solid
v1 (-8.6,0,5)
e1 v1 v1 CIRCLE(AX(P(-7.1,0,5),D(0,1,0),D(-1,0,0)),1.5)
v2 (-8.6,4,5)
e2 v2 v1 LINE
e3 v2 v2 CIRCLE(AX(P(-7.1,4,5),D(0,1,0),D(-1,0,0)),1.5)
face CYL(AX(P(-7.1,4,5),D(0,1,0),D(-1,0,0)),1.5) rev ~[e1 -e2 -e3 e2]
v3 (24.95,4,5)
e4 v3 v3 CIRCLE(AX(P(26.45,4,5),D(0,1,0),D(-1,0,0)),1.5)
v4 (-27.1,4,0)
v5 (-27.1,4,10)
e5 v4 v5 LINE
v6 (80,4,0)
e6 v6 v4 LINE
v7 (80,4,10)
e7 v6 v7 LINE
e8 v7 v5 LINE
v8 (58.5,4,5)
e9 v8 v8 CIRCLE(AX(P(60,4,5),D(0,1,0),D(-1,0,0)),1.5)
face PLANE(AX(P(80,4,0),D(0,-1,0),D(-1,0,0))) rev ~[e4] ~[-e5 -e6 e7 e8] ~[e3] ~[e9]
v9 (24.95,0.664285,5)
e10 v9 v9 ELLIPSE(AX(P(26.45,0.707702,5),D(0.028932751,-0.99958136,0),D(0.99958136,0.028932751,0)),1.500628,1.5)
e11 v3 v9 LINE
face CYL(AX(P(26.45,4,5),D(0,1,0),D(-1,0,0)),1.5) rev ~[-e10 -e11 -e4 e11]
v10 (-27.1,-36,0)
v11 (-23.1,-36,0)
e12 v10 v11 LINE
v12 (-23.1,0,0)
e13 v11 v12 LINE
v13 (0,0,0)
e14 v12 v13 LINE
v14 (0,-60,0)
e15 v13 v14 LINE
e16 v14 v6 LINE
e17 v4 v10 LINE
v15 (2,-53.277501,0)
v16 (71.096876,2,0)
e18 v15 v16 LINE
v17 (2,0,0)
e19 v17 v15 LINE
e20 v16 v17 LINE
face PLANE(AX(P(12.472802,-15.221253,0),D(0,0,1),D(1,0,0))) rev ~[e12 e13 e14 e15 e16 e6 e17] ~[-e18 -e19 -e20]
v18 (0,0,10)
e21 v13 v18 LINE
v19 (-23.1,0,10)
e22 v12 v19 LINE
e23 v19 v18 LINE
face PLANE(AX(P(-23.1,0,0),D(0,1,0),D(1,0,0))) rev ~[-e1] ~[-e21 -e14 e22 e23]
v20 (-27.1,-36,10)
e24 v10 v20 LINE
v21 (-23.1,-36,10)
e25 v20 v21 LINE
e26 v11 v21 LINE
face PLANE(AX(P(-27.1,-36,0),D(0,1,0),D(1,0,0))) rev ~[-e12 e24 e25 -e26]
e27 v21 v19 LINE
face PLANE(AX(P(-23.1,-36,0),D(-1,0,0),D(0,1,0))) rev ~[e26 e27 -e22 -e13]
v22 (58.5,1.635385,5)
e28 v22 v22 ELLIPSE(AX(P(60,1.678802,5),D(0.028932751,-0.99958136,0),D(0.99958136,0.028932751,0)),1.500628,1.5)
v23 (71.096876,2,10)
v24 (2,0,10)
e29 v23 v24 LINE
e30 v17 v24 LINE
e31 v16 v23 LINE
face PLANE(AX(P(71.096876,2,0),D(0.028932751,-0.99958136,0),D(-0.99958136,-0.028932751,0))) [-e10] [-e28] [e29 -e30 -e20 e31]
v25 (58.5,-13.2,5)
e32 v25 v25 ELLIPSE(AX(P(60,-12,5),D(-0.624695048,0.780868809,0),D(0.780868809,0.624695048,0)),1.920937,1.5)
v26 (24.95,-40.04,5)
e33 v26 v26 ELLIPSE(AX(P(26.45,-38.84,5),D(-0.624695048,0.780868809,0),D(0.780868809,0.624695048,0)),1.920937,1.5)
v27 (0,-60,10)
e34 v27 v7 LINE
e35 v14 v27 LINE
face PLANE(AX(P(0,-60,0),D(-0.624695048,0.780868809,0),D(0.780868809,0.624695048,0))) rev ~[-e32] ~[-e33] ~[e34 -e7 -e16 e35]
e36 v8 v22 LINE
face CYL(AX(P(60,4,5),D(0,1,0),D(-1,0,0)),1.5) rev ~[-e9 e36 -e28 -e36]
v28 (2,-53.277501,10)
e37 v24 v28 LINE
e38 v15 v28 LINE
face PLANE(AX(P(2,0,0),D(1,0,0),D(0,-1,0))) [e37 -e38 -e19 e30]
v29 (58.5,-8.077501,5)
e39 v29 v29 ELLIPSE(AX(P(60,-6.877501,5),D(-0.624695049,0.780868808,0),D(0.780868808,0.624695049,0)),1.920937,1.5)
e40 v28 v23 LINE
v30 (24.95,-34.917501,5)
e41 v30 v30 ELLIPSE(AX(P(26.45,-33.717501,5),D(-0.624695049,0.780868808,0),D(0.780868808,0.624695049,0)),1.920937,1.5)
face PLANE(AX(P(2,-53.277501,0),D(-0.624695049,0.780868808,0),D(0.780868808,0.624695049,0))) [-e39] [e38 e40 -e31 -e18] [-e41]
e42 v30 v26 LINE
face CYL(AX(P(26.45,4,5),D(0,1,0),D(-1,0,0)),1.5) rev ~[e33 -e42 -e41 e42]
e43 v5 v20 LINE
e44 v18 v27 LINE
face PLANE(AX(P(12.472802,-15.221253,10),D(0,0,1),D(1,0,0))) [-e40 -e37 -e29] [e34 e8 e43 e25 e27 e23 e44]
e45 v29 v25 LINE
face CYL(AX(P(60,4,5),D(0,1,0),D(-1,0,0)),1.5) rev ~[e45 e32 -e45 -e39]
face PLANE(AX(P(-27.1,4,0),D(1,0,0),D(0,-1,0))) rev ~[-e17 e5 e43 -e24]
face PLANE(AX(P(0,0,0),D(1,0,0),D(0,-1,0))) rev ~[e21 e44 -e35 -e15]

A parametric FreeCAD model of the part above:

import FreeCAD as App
import Part
import Sketcher
from FreeCAD import Vector

doc = App.newDocument("Part")
params = doc.addObject("Spreadsheet::Sheet", "Params")
for row, (alias, value) in enumerate([
    ("sketch1_width", "4 mm"),
    ("sketch1_height", "40 mm"),
    ("sketch1_height2", "36 mm"),
    ("sketch1_height3", "60 mm"),
    ("sketch1_width2", "107.1 mm"),
    ("pad1_length", "10 mm"),
    ("sketch2_diameter", "3 mm"),
], start=1):
    params.set(f"A{row}", alias)
    params.set(f"B{row}", "=" + value)
    params.setAlias(f"B{row}", alias)

body = doc.addObject("PartDesign::Body", "Body")

# Sketch on XY plane
sketch1 = doc.addObject("Sketcher::SketchObject", "Sketch")
body.addObject(sketch1)
sketch1.AttachmentSupport = (doc.XY_Plane, [""])
sketch1.MapMode = "FlatFace"
sketch1.addGeometry(Part.LineSegment(Vector(80, 4, 0), Vector(-27.1, 4, 0)), False)
sketch1.addGeometry(Part.LineSegment(Vector(-27.1, 4, 0), Vector(-27.1, -36, 0)), False)
sketch1.addGeometry(Part.LineSegment(Vector(-27.1, -36, 0), Vector(-23.1, -36, 0)), False)
sketch1.addGeometry(Part.LineSegment(Vector(-23.1, -36, 0), Vector(-23.1, 0, 0)), False)
sketch1.addGeometry(Part.LineSegment(Vector(-23.1, 0, 0), Vector(0, 0, 0)), False)
sketch1.addGeometry(Part.LineSegment(Vector(0, 0, 0), Vector(0, -60, 0)), False)
sketch1.addGeometry(Part.LineSegment(Vector(0, -60, 0), Vector(80, 4, 0)), False)
sketch1.addGeometry(Part.LineSegment(Vector(2, -53.3, 0), Vector(2, 0, 0)), False)
sketch1.addGeometry(Part.LineSegment(Vector(2, 0, 0), Vector(71.1, 2, 0)), False)
sketch1.addGeometry(Part.LineSegment(Vector(71.1, 2, 0), Vector(2, -53.3, 0)), False)
sketch1.addConstraint(Sketcher.Constraint("Coincident", 0, 2, 1, 1))
sketch1.addConstraint(Sketcher.Constraint("Coincident", 1, 2, 2, 1))
sketch1.addConstraint(Sketcher.Constraint("Coincident", 2, 2, 3, 1))
sketch1.addConstraint(Sketcher.Constraint("Coincident", 3, 2, 4, 1))
sketch1.addConstraint(Sketcher.Constraint("Coincident", 4, 2, 5, 1))
sketch1.addConstraint(Sketcher.Constraint("Coincident", 5, 2, 6, 1))
sketch1.addConstraint(Sketcher.Constraint("Coincident", 6, 2, 0, 1))
sketch1.addConstraint(Sketcher.Constraint("Coincident", 7, 2, 8, 1))
sketch1.addConstraint(Sketcher.Constraint("Coincident", 8, 2, 9, 1))
sketch1.addConstraint(Sketcher.Constraint("Coincident", 9, 2, 7, 1))
sketch1.addConstraint(Sketcher.Constraint("Horizontal", 0))
sketch1.addConstraint(Sketcher.Constraint("Vertical", 1))
sketch1.addConstraint(Sketcher.Constraint("Horizontal", 2))
sketch1.addConstraint(Sketcher.Constraint("Vertical", 3))
sketch1.addConstraint(Sketcher.Constraint("Horizontal", 4))
sketch1.addConstraint(Sketcher.Constraint("Vertical", 5))
sketch1.addConstraint(Sketcher.Constraint("Vertical", 7))
sketch1.addConstraint(Sketcher.Constraint("Coincident", 4, 2, -1, 1))
sketch1.addConstraint(Sketcher.Constraint("PointOnObject", 7, 2, -1))
sketch1.addConstraint(Sketcher.Constraint("Parallel", 6, 9))
sketch1.addConstraint(Sketcher.Constraint("DistanceX", 2, 1, 2, 2, 4.0))
sketch1.addConstraint(Sketcher.Constraint("DistanceY", 1, 2, 1, 1, 40.0))
sketch1.addConstraint(Sketcher.Constraint("DistanceY", 3, 1, 3, 2, 36.0))
sketch1.addConstraint(Sketcher.Constraint("DistanceY", 5, 2, 5, 1, 60.0))
sketch1.addConstraint(Sketcher.Constraint("DistanceX", 0, 2, 0, 1, 107.1))
sketch1.addConstraint(Sketcher.Constraint("DistanceX", 4, 1, 4, 2, 23.1))
sketch1.addConstraint(Sketcher.Constraint("DistanceX", -1, 1, 7, 2, 2.0))
sketch1.addConstraint(Sketcher.Constraint("DistanceY", -1, 1, 8, 2, 2.0))
sketch1.addConstraint(Sketcher.Constraint("DistanceY", 7, 1, 7, 2, 53.277501))
sketch1.setExpression("Constraints[20]", "Params.sketch1_width")
sketch1.setExpression("Constraints[21]", "Params.sketch1_height")
sketch1.setExpression("Constraints[22]", "Params.sketch1_height2")
sketch1.setExpression("Constraints[23]", "Params.sketch1_height3")
sketch1.setExpression("Constraints[24]", "Params.sketch1_width2")
pad1 = doc.addObject("PartDesign::Pad", "Pad")
body.addObject(pad1)
pad1.Profile = sketch1
pad1.setExpression("Length", "Params.pad1_length")

# Sketch on XZ plane
sketch2 = doc.addObject("Sketcher::SketchObject", "Sketch001")
body.addObject(sketch2)
sketch2.AttachmentSupport = (doc.XZ_Plane, [""])
sketch2.MapMode = "FlatFace"
sketch2.AttachmentOffset = App.Placement(Vector(0, 0, -4), App.Rotation())
sketch2.addGeometry(Part.Circle(Vector(60, 5, 0), Vector(0, 0, 1), 1.5), False)
sketch2.addGeometry(Part.Circle(Vector(-7.1, 5, 0), Vector(0, 0, 1), 1.5), False)
sketch2.addGeometry(Part.Circle(Vector(26.4, 5, 0), Vector(0, 0, 1), 1.5), False)
sketch2.addConstraint(Sketcher.Constraint("Equal", 0, 1))
sketch2.addConstraint(Sketcher.Constraint("Equal", 1, 2))
sketch2.addConstraint(Sketcher.Constraint("Horizontal", 0, 3, 1, 3))
sketch2.addConstraint(Sketcher.Constraint("Horizontal", 1, 3, 2, 3))
sketch2.addConstraint(Sketcher.Constraint("Diameter", 0, 3.0))
sketch2.addConstraint(Sketcher.Constraint("DistanceX", -1, 1, 0, 3, 60.0))
sketch2.addConstraint(Sketcher.Constraint("DistanceY", -1, 1, 0, 3, 5.0))
sketch2.addConstraint(Sketcher.Constraint("DistanceX", 1, 3, -1, 1, 7.1))
sketch2.addConstraint(Sketcher.Constraint("DistanceX", -1, 1, 2, 3, 26.45))
sketch2.setExpression("Constraints[4]", "Params.sketch2_diameter")
pocket1 = doc.addObject("PartDesign::Pocket", "Pocket")
body.addObject(pocket1)
pocket1.Profile = sketch2
pocket1.Type = "ThroughAll"
pocket1.Reversed = True

doc.recompute()
